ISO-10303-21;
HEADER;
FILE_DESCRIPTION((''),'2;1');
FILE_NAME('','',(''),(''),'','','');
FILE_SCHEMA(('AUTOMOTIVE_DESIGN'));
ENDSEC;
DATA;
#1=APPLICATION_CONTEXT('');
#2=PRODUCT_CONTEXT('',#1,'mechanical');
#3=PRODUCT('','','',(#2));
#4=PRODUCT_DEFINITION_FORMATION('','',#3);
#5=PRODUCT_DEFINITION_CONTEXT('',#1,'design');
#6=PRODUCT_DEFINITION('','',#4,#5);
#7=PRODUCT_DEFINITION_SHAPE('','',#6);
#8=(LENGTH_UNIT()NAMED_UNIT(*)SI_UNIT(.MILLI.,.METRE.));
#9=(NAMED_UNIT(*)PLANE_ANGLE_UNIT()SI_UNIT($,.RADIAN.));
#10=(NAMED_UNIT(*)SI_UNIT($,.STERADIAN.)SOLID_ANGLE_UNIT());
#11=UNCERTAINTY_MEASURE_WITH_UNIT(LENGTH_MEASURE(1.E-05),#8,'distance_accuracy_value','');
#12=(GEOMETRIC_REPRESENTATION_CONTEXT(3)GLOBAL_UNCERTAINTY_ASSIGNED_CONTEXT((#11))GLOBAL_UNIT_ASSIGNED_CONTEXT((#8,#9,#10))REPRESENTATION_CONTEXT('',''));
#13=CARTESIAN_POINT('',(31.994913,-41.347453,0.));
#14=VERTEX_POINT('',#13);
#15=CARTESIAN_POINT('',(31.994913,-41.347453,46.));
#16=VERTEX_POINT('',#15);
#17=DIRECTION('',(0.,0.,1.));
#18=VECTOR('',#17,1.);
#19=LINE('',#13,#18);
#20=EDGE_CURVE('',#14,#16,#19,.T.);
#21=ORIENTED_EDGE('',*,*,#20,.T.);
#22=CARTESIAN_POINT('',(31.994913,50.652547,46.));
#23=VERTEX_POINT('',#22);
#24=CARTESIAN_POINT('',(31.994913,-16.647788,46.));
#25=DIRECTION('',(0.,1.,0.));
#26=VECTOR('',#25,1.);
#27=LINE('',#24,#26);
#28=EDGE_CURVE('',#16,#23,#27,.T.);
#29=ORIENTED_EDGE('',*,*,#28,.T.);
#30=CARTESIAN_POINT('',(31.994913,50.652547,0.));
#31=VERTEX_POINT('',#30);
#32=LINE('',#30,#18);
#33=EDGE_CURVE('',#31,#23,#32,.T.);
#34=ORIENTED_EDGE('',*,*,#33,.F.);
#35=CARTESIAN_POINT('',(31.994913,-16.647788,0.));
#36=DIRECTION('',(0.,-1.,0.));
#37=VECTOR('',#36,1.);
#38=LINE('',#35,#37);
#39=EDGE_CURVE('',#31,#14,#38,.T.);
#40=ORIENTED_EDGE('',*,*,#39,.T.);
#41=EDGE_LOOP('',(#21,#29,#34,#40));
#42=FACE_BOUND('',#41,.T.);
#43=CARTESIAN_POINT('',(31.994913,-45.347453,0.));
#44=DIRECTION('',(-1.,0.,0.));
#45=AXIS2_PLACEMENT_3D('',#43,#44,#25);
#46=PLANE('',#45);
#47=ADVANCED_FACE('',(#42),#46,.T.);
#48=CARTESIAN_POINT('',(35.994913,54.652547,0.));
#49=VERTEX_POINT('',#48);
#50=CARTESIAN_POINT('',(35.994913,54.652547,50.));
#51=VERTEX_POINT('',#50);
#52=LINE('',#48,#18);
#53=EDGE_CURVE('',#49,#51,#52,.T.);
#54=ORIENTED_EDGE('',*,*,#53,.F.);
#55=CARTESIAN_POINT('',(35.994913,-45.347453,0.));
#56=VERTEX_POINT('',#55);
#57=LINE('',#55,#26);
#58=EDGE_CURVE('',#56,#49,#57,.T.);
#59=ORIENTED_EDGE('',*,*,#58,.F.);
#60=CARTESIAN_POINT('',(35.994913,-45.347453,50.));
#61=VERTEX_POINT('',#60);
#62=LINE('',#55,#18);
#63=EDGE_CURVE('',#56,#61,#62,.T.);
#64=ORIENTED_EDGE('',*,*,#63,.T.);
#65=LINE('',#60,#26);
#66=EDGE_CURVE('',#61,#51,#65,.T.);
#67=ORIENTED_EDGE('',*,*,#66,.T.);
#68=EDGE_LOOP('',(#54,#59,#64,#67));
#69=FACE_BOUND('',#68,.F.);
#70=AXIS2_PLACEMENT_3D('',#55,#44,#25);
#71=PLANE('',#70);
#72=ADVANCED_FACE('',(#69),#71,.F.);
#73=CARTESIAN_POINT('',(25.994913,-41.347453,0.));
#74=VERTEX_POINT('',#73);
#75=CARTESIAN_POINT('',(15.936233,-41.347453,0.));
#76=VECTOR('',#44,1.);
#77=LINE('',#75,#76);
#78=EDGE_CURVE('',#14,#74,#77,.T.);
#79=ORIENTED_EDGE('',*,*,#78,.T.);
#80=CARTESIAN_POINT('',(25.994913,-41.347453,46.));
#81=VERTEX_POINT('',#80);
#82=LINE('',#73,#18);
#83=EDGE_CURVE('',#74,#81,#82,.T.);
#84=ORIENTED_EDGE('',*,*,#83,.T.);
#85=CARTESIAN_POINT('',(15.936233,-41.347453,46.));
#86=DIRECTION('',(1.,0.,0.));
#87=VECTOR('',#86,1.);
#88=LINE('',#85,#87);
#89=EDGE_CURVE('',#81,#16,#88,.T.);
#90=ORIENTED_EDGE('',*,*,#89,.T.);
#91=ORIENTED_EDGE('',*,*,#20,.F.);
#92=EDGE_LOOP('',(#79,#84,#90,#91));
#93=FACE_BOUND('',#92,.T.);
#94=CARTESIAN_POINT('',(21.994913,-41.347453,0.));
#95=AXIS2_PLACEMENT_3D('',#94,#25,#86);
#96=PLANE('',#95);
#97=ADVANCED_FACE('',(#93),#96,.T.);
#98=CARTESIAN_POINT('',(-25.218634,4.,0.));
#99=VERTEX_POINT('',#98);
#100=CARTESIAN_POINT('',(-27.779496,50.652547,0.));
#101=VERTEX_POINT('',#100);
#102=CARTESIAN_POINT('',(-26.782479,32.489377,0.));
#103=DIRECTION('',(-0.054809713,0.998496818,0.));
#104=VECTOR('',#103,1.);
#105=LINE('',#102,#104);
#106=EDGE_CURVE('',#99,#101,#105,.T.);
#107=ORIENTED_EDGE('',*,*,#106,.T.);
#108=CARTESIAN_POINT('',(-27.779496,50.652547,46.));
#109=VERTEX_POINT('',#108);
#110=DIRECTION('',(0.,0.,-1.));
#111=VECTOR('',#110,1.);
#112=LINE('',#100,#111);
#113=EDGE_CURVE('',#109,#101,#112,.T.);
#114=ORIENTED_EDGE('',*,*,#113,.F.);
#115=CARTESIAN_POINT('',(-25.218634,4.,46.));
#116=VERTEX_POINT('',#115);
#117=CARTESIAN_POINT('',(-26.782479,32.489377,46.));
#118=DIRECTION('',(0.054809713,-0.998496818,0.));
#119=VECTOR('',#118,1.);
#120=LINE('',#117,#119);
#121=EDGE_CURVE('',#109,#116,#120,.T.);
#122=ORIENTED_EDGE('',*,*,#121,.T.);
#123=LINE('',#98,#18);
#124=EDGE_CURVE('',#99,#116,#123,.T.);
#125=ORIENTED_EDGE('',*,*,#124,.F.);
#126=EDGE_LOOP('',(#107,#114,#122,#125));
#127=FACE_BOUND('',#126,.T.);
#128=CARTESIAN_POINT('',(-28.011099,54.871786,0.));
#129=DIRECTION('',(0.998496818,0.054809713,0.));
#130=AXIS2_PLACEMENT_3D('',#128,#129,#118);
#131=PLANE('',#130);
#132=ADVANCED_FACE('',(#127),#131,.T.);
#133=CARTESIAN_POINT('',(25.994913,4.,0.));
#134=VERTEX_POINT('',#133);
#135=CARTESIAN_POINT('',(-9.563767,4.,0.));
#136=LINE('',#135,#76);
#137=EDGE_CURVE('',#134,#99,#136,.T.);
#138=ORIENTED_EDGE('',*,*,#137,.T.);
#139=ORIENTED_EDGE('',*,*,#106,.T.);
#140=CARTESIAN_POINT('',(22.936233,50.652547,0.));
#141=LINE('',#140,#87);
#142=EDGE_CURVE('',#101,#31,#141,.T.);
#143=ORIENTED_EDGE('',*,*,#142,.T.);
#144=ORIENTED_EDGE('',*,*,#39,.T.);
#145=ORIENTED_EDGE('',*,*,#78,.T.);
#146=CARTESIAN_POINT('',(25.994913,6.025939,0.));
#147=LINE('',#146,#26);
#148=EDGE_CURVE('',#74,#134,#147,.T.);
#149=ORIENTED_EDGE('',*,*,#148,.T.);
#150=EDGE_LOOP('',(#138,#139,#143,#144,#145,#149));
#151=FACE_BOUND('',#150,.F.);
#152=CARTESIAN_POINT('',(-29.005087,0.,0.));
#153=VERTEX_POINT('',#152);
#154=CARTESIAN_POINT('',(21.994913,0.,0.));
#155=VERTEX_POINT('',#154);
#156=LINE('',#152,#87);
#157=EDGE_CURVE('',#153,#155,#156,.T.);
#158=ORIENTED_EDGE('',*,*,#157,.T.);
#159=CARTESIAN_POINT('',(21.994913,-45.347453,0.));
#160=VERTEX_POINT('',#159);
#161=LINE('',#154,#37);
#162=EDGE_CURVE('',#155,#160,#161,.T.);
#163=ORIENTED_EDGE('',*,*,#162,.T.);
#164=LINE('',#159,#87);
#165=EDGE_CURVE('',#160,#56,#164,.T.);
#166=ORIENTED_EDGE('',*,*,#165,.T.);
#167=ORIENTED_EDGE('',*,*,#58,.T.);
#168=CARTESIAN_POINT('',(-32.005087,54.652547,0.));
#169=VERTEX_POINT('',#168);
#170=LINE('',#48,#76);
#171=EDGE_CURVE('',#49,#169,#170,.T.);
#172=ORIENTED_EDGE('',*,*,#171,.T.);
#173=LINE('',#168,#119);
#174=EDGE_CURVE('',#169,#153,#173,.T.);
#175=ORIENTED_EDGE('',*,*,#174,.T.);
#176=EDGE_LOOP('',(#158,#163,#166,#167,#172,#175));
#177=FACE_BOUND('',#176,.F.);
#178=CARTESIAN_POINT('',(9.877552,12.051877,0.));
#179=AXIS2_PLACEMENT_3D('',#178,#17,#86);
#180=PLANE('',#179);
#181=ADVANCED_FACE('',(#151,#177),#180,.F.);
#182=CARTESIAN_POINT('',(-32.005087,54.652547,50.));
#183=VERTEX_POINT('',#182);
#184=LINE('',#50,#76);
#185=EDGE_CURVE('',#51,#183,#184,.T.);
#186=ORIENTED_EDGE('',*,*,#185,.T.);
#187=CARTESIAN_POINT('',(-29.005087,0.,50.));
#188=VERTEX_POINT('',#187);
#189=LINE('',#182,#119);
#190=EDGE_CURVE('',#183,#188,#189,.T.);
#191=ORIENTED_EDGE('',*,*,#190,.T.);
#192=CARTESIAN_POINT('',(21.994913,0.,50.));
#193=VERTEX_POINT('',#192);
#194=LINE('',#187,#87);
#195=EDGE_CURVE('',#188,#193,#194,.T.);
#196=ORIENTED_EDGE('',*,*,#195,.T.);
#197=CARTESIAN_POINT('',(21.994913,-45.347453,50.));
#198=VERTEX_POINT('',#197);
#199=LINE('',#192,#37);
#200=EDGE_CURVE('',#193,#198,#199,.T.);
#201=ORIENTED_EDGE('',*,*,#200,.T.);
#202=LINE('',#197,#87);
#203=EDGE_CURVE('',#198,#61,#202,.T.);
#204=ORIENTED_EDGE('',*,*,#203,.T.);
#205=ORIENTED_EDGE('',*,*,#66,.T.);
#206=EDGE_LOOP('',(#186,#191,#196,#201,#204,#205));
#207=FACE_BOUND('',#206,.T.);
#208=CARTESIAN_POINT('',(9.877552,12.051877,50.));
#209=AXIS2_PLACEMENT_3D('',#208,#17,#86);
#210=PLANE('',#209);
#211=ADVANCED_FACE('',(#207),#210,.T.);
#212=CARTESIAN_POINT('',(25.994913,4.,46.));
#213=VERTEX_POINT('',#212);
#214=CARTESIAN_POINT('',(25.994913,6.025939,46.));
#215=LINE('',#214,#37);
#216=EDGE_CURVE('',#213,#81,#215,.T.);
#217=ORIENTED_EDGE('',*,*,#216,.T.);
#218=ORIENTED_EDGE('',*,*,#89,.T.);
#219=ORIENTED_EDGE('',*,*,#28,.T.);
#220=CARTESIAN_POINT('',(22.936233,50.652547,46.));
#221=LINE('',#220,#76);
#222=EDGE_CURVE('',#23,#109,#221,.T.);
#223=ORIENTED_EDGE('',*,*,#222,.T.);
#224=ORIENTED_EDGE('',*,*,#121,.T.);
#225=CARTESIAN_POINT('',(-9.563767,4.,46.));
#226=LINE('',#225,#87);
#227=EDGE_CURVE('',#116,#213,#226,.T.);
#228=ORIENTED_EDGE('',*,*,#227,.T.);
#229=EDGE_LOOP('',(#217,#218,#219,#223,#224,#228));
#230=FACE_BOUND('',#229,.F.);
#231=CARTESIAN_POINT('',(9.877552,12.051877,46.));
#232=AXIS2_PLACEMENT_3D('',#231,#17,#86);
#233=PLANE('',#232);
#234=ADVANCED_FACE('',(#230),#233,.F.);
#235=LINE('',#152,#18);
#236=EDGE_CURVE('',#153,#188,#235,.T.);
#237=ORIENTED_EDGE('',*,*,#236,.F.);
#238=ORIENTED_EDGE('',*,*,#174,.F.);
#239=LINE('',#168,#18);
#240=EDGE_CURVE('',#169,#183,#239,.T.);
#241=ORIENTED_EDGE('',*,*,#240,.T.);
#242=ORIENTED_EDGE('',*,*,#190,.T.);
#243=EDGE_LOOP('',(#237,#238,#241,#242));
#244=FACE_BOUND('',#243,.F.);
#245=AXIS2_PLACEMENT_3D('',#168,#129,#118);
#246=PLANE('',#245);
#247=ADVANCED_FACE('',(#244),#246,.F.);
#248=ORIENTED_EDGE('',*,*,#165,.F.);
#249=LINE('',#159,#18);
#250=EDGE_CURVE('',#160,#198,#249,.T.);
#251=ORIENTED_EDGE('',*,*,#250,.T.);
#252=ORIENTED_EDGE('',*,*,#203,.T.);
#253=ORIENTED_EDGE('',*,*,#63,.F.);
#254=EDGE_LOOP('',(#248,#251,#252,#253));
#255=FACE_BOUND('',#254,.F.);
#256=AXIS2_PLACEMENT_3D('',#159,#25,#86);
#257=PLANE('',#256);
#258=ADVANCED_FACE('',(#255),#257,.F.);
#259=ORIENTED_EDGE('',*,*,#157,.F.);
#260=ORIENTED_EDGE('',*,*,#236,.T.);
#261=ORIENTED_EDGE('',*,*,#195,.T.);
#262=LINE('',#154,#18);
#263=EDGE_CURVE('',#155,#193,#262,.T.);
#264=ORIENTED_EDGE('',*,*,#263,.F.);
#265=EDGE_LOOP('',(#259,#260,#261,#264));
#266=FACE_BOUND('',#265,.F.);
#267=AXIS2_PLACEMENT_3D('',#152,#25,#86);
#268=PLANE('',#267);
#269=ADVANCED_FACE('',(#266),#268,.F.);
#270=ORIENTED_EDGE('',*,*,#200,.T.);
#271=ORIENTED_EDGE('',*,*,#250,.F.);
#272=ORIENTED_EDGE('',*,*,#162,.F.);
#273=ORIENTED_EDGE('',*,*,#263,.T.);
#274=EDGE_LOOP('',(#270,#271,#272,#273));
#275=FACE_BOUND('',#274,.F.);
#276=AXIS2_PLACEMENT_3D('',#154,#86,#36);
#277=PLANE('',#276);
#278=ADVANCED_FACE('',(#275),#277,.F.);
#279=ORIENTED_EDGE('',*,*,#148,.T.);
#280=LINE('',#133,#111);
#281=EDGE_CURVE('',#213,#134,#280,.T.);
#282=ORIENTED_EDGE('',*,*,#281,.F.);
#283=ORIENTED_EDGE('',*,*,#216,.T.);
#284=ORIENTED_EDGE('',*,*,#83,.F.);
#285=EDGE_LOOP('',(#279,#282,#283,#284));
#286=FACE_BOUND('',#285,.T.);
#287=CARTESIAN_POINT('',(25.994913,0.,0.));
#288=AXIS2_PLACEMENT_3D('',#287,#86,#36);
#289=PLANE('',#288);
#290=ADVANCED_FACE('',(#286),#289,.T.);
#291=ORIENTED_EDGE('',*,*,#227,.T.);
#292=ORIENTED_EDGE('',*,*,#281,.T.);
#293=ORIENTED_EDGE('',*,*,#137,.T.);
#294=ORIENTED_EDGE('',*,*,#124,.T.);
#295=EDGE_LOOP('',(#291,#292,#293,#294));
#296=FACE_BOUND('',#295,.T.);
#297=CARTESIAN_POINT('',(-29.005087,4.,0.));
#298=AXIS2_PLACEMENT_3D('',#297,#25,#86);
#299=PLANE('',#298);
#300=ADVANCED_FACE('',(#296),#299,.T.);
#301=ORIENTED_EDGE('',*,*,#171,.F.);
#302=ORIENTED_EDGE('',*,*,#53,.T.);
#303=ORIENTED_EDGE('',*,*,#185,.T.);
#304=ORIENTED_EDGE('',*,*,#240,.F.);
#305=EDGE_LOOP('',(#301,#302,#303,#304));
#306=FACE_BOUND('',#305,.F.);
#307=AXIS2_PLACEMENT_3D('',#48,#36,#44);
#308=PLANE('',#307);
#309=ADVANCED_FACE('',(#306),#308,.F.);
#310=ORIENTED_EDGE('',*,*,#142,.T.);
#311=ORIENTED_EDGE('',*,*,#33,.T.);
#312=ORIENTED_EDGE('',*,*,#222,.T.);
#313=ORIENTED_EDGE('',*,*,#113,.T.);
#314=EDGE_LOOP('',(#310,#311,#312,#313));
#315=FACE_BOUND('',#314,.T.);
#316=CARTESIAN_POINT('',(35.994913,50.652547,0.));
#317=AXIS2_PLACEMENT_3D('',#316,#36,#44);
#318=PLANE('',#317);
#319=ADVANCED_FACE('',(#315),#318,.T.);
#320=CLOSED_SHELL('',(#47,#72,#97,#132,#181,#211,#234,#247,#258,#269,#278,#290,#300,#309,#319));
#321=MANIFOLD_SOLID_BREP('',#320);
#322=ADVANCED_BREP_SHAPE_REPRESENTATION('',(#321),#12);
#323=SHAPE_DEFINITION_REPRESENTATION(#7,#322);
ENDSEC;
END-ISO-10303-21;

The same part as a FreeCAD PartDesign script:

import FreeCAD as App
import Part
import Sketcher

V = App.Vector
Q = App.Units.Quantity


def faces_at(feature, points):
    """Names of the faces that lie closest to the given points."""
    faces = feature.Shape.Faces
    near = lambda p: min(range(len(faces)), key=lambda i: faces[i].distToShape(Part.Vertex(*p))[0])
    return sorted({f"Face{near(p) + 1}" for p in points})

doc = App.newDocument("Part")
body = doc.addObject("PartDesign::Body", "Body")

sketch1 = body.newObject("Sketcher::SketchObject", "Sketch")
sketch1.AttachmentSupport = (doc.getObject("XY_Plane"), [""])
sketch1.MapMode = "FlatFace"
sketch1.addGeometry(Part.LineSegment(V(-32, 55, 0), V(-29, 0, 0)), False)
sketch1.addGeometry(Part.LineSegment(V(-29, 0, 0), V(22, 0, 0)), False)
sketch1.addGeometry(Part.LineSegment(V(22, 0, 0), V(22, -45, 0)), False)
sketch1.addGeometry(Part.LineSegment(V(22, -45, 0), V(36, -45, 0)), False)
sketch1.addGeometry(Part.LineSegment(V(36, -45, 0), V(36, 55, 0)), False)
sketch1.addGeometry(Part.LineSegment(V(36, 55, 0), V(-32, 55, 0)), False)
sketch1.addConstraint(Sketcher.Constraint("Coincident", 0, 2, 1, 1))
sketch1.addConstraint(Sketcher.Constraint("Coincident", 1, 2, 2, 1))
sketch1.addConstraint(Sketcher.Constraint("Coincident", 2, 2, 3, 1))
sketch1.addConstraint(Sketcher.Constraint("Coincident", 3, 2, 4, 1))
sketch1.addConstraint(Sketcher.Constraint("Coincident", 4, 2, 5, 1))
sketch1.addConstraint(Sketcher.Constraint("Coincident", 5, 2, 0, 1))
sketch1.addConstraint(Sketcher.Constraint("Horizontal", 1))
sketch1.addConstraint(Sketcher.Constraint("Vertical", 2))
sketch1.addConstraint(Sketcher.Constraint("Horizontal", 3))
sketch1.addConstraint(Sketcher.Constraint("Vertical", 4))
sketch1.addConstraint(Sketcher.Constraint("Horizontal", 5))
sketch1.addConstraint(Sketcher.Constraint("PointOnObject", 0, 2, -1))
sketch1.addConstraint(Sketcher.Constraint("DistanceX", 1, 1, 1, 2, Q("51 mm")))
sketch1.addConstraint(Sketcher.Constraint("DistanceX", 3, 1, 3, 2, Q("14 mm")))
sketch1.addConstraint(Sketcher.Constraint("DistanceX", 5, 2, 5, 1, Q("68 mm")))
sketch1.addConstraint(Sketcher.Constraint("DistanceY", 4, 1, 4, 2, Q("100 mm")))
sketch1.addConstraint(Sketcher.Constraint("DistanceY", 2, 2, 2, 1, Q("45.347453 mm")))
sketch1.addConstraint(Sketcher.Constraint("DistanceX", 0, 2, -1, 1, Q("29.005087 mm")))
pad1 = body.newObject("PartDesign::Pad", "Pad")
pad1.Profile = sketch1
pad1.Length = 50
doc.recompute()

thickness = body.newObject("PartDesign::Thickness", "Thickness")
thickness.Base = (pad1, faces_at(pad1, [(1.995, 4.653, 0)]))
thickness.Value = 4
thickness.Reversed = True
thickness.Join = "Intersection"

doc.recompute()
